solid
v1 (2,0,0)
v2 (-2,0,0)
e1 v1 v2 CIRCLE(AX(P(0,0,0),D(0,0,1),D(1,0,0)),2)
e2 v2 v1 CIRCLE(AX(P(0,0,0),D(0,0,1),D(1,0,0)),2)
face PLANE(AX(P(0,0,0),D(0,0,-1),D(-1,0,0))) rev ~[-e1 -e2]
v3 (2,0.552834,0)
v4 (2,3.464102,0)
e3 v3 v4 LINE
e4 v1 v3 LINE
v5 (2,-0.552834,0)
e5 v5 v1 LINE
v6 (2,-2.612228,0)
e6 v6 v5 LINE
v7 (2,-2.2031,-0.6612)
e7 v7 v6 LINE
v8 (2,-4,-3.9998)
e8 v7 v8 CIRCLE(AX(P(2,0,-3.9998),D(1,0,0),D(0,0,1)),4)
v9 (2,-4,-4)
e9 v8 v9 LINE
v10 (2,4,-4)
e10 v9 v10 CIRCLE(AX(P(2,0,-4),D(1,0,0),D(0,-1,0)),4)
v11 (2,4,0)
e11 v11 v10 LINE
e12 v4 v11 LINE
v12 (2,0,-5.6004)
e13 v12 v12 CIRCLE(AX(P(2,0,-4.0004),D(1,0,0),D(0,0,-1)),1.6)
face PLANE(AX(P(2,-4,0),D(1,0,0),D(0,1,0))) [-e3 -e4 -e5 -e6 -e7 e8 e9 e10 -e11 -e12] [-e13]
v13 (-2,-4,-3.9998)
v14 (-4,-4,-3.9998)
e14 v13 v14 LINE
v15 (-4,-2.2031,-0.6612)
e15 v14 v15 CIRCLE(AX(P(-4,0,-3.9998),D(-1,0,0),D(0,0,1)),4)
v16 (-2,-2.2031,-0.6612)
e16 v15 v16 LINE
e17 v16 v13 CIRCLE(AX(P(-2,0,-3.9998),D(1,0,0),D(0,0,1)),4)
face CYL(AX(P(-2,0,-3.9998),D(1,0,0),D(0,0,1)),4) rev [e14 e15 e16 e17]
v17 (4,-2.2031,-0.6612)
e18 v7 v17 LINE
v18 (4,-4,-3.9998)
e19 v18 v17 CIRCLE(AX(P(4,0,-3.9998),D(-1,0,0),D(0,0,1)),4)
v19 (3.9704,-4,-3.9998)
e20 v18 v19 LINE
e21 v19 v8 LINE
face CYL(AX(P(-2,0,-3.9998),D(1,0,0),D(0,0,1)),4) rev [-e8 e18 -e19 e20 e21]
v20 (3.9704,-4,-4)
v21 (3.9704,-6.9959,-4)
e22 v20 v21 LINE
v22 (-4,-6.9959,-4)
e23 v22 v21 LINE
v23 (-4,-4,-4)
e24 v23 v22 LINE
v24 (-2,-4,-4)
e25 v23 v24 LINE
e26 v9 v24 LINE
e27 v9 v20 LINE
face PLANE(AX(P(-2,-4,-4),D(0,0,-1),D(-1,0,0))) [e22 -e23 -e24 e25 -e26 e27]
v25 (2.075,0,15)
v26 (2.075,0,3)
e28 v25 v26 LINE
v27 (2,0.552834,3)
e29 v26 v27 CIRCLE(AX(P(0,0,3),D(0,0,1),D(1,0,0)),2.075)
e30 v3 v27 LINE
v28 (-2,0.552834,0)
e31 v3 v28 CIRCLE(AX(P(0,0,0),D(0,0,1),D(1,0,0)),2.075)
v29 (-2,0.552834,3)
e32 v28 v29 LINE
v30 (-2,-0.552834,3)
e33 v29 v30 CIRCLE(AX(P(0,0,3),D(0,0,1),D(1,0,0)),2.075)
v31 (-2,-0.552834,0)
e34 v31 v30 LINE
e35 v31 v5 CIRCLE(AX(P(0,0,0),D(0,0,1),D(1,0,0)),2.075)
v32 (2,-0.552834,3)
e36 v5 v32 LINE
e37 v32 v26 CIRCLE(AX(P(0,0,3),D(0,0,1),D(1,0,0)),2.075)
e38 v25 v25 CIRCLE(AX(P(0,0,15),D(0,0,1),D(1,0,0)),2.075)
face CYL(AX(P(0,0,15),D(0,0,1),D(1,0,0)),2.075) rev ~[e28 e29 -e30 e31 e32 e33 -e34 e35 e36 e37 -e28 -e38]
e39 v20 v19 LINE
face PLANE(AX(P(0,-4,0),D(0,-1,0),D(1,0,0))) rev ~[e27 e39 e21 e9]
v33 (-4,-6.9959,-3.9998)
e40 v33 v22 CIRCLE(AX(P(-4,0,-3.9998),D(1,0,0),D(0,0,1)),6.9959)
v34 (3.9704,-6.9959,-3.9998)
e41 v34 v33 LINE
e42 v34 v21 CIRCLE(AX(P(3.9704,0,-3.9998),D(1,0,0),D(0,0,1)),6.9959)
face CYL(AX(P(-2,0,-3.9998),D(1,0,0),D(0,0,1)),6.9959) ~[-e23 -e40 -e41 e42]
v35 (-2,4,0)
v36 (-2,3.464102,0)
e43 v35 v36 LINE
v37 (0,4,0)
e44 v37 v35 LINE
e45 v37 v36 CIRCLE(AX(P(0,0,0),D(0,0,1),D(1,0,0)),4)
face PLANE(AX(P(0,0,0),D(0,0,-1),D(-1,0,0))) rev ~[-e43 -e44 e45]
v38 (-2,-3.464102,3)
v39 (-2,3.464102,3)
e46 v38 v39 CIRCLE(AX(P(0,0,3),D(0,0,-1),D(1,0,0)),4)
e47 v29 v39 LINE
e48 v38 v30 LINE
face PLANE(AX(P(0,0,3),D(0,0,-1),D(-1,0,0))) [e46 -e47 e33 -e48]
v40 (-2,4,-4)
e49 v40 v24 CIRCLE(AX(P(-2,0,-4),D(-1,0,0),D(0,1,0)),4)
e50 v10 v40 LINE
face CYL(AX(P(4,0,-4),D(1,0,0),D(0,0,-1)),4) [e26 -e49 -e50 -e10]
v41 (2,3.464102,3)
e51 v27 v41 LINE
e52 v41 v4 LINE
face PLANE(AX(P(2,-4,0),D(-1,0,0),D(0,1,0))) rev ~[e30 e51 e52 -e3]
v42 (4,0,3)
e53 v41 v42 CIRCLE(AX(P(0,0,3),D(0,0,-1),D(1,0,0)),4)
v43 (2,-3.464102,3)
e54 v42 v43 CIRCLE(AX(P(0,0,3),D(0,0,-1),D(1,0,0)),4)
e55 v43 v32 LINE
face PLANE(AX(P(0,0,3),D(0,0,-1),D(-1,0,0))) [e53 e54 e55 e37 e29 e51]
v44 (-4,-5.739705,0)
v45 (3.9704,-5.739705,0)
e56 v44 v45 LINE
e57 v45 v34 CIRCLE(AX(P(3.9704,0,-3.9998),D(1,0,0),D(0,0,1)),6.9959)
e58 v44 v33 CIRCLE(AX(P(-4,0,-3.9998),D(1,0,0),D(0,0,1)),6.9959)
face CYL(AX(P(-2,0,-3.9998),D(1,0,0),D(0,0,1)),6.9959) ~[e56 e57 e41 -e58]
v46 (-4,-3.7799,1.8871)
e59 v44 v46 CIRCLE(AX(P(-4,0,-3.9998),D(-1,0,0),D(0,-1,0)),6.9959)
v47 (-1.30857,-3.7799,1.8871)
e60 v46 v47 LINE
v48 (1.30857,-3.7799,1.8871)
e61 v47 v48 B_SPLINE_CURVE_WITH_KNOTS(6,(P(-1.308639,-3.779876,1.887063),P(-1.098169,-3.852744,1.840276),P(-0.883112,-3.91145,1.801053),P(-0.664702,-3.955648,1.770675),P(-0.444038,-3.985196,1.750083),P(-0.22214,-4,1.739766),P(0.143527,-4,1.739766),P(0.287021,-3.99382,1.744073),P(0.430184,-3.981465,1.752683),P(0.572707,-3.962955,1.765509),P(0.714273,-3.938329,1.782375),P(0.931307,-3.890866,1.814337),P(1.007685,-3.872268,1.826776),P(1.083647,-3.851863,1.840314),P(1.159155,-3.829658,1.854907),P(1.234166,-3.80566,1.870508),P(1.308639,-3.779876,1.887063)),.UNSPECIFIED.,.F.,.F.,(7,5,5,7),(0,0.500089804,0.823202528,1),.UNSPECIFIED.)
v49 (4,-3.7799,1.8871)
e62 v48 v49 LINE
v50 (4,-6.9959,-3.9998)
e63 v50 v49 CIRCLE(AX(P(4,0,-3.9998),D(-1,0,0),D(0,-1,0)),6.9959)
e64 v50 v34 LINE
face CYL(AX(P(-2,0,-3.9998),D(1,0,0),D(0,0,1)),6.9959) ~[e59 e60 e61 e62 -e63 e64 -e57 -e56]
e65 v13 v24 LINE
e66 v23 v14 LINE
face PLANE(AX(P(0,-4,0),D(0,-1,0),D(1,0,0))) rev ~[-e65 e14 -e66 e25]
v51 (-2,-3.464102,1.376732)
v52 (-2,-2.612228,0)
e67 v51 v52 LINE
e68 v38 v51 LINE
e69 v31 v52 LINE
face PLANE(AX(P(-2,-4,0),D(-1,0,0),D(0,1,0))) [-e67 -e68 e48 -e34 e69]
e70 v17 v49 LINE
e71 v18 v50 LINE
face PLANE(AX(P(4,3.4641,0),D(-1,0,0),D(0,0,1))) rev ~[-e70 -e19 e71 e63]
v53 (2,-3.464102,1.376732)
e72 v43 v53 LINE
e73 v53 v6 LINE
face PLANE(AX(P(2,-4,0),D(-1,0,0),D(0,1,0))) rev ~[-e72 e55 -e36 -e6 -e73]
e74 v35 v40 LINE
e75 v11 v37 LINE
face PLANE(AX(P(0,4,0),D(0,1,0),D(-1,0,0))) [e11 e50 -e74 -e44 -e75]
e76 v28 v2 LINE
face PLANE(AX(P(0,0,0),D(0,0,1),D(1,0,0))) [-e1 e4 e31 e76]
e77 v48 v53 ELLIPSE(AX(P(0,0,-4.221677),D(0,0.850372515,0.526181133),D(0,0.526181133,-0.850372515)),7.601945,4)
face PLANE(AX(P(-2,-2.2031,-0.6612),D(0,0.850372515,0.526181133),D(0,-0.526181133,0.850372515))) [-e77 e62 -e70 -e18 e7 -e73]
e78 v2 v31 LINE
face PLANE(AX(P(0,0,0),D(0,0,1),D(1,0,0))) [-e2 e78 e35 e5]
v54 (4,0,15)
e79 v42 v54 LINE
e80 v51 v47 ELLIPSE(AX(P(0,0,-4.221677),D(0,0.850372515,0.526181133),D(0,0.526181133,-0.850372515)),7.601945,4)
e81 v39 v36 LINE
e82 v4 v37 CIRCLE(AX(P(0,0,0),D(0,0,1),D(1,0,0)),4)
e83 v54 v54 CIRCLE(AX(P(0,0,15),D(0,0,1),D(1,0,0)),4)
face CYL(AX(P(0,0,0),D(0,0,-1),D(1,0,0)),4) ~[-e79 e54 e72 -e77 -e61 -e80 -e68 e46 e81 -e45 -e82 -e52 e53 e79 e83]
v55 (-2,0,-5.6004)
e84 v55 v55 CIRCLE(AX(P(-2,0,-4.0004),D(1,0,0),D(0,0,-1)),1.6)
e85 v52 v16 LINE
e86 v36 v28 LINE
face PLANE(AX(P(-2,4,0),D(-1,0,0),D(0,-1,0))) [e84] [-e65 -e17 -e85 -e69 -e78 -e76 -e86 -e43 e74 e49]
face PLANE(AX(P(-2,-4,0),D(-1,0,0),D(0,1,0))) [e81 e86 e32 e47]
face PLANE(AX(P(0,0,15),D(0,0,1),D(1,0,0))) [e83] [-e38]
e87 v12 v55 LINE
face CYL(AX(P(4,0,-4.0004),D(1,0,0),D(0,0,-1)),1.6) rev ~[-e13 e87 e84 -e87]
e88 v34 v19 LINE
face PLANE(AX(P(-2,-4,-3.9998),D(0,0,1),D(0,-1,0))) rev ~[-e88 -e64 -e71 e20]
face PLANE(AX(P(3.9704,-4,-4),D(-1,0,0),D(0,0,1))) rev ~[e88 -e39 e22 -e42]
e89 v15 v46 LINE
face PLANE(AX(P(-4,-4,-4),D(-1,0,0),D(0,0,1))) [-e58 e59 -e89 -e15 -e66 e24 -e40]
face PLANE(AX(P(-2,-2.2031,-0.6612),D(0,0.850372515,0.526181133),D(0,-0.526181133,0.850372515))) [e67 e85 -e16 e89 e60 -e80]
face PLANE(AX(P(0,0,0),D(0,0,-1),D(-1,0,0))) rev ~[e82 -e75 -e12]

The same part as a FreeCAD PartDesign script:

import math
import FreeCAD as App
import Part
import Sketcher
from FreeCAD import Vector
Q = App.Units.Quantity


def add_polygon(sketch, points):
    """Adds a closed chain of lines whose ends are joined by coincident constraints."""
    first, n = sketch.GeometryCount, len(points)
    for a, b in zip(points, points[1:] + points[:1]):
        sketch.addGeometry(Part.LineSegment(App.Vector(*a, 0), App.Vector(*b, 0)), False)
    for i in range(n):
        sketch.addConstraint(Sketcher.Constraint("Coincident", first + i, 2, first + (i + 1) % n, 1))

doc = App.newDocument("Part")
body = doc.addObject("PartDesign::Body", "Body")

# Sketch on XY plane
sketch1 = doc.addObject("Sketcher::SketchObject", "Sketch")
body.addObject(sketch1)
sketch1.AttachmentSupport = (doc.XY_Plane, [""])
sketch1.MapMode = "FlatFace"
sketch1.addGeometry([
    Part.Circle(Vector(0, 0, 0), Vector(0, 0, 1), 4),
    Part.Circle(Vector(0, 0, 0), Vector(0, 0, 1), 2),
], False)
sketch1.addConstraint([
    Sketcher.Constraint("Coincident", 0, 3, -1, 1),
    Sketcher.Constraint("Coincident", 1, 3, -1, 1),
    Sketcher.Constraint("Diameter", 0, Q("8 mm")),
    Sketcher.Constraint("Diameter", 1, Q("4 mm")),
])
pad1 = doc.addObject("PartDesign::Pad", "Pad")
body.addObject(pad1)
pad1.Profile = sketch1
pad1.Length = 15

# Sketch on XY plane
sketch2 = doc.addObject("Sketcher::SketchObject", "Sketch001")
body.addObject(sketch2)
sketch2.AttachmentSupport = (doc.XY_Plane, [""])
sketch2.MapMode = "FlatFace"
add_polygon(sketch2, [(-4, -4), (-4, 4), (4, 4), (4, -4)])  # lines 0-3
sketch2.addConstraint([
    Sketcher.Constraint("Vertical", 0),
    Sketcher.Constraint("Horizontal", 1),
    Sketcher.Constraint("Vertical", 2),
    Sketcher.Constraint("Horizontal", 3),
    Sketcher.Constraint("Symmetric", 0, 2, 2, 2, -1, 1),
    Sketcher.Constraint("Equal", 3, 0),
    Sketcher.Constraint("DistanceX", 1, 1, 1, 2, Q("8 mm")),
])
pad2 = doc.addObject("PartDesign::Pad", "Pad001")
body.addObject(pad2)
pad2.Profile = sketch2
pad2.Length = 8
pad2.Reversed = True

# Sketch on YZ plane
sketch3 = doc.addObject("Sketcher::SketchObject", "Sketch002")
body.addObject(sketch3)
sketch3.AttachmentSupport = (doc.YZ_Plane, [""])
sketch3.MapMode = "FlatFace"
sketch3.AttachmentOffset = App.Placement(Vector(0, 0, 4), App.Rotation())
sketch3.addGeometry([
    Part.LineSegment(Vector(-4, -8, 0), Vector(0, -8, 0)),  # 0
    Part.ArcOfCircle(Part.Circle(Vector(0, -4, 0), Vector(0, 0, 1), 4), math.radians(180), math.radians(270)),  # 1
    Part.LineSegment(Vector(-4, -4, 0), Vector(-4, -8, 0)),  # 2
    Part.ArcOfCircle(Part.Circle(Vector(0, -4, 0), Vector(0, 0, 1), 4), math.radians(-90), math.radians(0)),  # 3
    Part.LineSegment(Vector(0, -8, 0), Vector(4, -8, 0)),  # 4
    Part.LineSegment(Vector(4, -8, 0), Vector(4, -4, 0)),  # 5
], False)
sketch3.addConstraint([
    Sketcher.Constraint("Tangent", 0, 2, 1, 2),
    Sketcher.Constraint("Tangent", 1, 1, 2, 1),
    Sketcher.Constraint("Coincident", 2, 2, 0, 1),
    Sketcher.Constraint("Tangent", 3, 1, 4, 1),
    Sketcher.Constraint("Coincident", 4, 2, 5, 1),
    Sketcher.Constraint("Tangent", 5, 2, 3, 2),
    Sketcher.Constraint("Horizontal", 0),
    Sketcher.Constraint("Vertical", 2),
    Sketcher.Constraint("Horizontal", 4),
    Sketcher.Constraint("Vertical", 5),
    Sketcher.Constraint("Coincident", 3, 3, 1, 3),
    Sketcher.Constraint("Equal", 1, 3),
    Sketcher.Constraint("PointOnObject", 1, 3, -2),
    Sketcher.Constraint("Radius", 1, Q("4 mm")),
    Sketcher.Constraint("DistanceY", 1, 3, -1, 1, Q("4 mm")),
])
pocket1 = doc.addObject("PartDesign::Pocket", "Pocket")
body.addObject(pocket1)
pocket1.Profile = sketch3
pocket1.Length = 8

# Sketch on YZ plane
sketch4 = doc.addObject("Sketcher::SketchObject", "Sketch003")
body.addObject(sketch4)
sketch4.AttachmentSupport = (doc.YZ_Plane, [""])
sketch4.MapMode = "FlatFace"
sketch4.AttachmentOffset = App.Placement(Vector(0, 0, 4), App.Rotation())
sketch4.addGeometry(Part.Circle(Vector(0, -4, 0), Vector(0, 0, 1), 1.6), False)
sketch4.addConstraint([
    Sketcher.Constraint("PointOnObject", 0, 3, -2),
    Sketcher.Constraint("Diameter", 0, Q("3.2 mm")),
    Sketcher.Constraint("DistanceY", 0, 3, -1, 1, Q("4.0004 mm")),
])
pocket2 = doc.addObject("PartDesign::Pocket", "Pocket001")
body.addObject(pocket2)
pocket2.Profile = sketch4
pocket2.Length = 8

# Sketch on XY plane
sketch5 = doc.addObject("Sketcher::SketchObject", "Sketch004")
body.addObject(sketch5)
sketch5.AttachmentSupport = (doc.XY_Plane, [""])
sketch5.MapMode = "FlatFace"
add_polygon(sketch5, [(4, 4), (2, 4), (2, -4), (4, -4)])  # lines 0-3
add_polygon(sketch5, [(-2, -4), (-2, 4), (-4, 4), (-4, -4)])  # lines 4-7
sketch5.addConstraint([
    Sketcher.Constraint("Horizontal", 0),
    Sketcher.Constraint("Vertical", 1),
    Sketcher.Constraint("Horizontal", 2),
    Sketcher.Constraint("Vertical", 3),
    Sketcher.Constraint("Vertical", 4),
    Sketcher.Constraint("Horizontal", 5),
    Sketcher.Constraint("Vertical", 6),
    Sketcher.Constraint("Horizontal", 7),
    Sketcher.Constraint("Symmetric", 1, 2, 4, 2, -1, 1),
    Sketcher.Constraint("Symmetric", 3, 2, 6, 2, -1, 1),
    Sketcher.Constraint("Horizontal", 3, 2, 4, 2),
    Sketcher.Constraint("DistanceX", 0, 2, 0, 1, Q("2 mm")),
    Sketcher.Constraint("DistanceY", 1, 2, 1, 1, Q("8 mm")),
    Sketcher.Constraint("DistanceX", -1, 1, 0, 2, Q("2 mm")),
])
pocket3 = doc.addObject("PartDesign::Pocket", "Pocket002")
body.addObject(pocket3)
pocket3.Profile = sketch5
pocket3.Length = 8

# Sketch on XZ plane
sketch6 = doc.addObject("Sketcher::SketchObject", "Sketch005")
body.addObject(sketch6)
sketch6.AttachmentSupport = (doc.XZ_Plane, [""])
sketch6.MapMode = "FlatFace"
sketch6.AttachmentOffset = App.Placement(Vector(0, 0, 4), App.Rotation())
add_polygon(sketch6, [(-4, -4), (4, -4), (4, 0), (-4, 0)])  # lines 0-3
sketch6.addConstraint([
    Sketcher.Constraint("Horizontal", 0),
    Sketcher.Constraint("Vertical", 1),
    Sketcher.Constraint("Horizontal", 2),
    Sketcher.Constraint("Vertical", 3),
    Sketcher.Constraint("PointOnObject", 1, 2, -1),
    Sketcher.Constraint("DistanceY", 1, 1, 1, 2, Q("4 mm")),
    Sketcher.Constraint("DistanceX", 2, 2, -1, 1, Q("4 mm")),
    Sketcher.Constraint("DistanceX", 0, 1, 0, 2, Q("7.9704 mm")),
])
pad3 = doc.addObject("PartDesign::Pad", "Pad002")
body.addObject(pad3)
pad3.Profile = sketch6
pad3.Length = 3

# Sketch on XY plane
sketch7 = doc.addObject("Sketcher::SketchObject", "Sketch006")
body.addObject(sketch7)
sketch7.AttachmentSupport = (doc.XY_Plane, [""])
sketch7.MapMode = "FlatFace"
add_polygon(sketch7, [(-5, 4), (-2, 4), (-2, -4), (-5, -4)])  # lines 0-3
add_polygon(sketch7, [(2, -4), (2, 4), (4.8, 4), (4.8, -4)])  # lines 4-7
sketch7.addConstraint([
    Sketcher.Constraint("Horizontal", 0),
    Sketcher.Constraint("Vertical", 1),
    Sketcher.Constraint("Horizontal", 2),
    Sketcher.Constraint("Vertical", 3),
    Sketcher.Constraint("Vertical", 4),
    Sketcher.Constraint("Horizontal", 5),
    Sketcher.Constraint("Vertical", 6),
    Sketcher.Constraint("Horizontal", 7),
    Sketcher.Constraint("Symmetric", 1, 2, 4, 2, -1, 1),
    Sketcher.Constraint("Horizontal", 3, 2, 4, 2),
    Sketcher.Constraint("Horizontal", 2, 2, 6, 2),
    Sketcher.Constraint("DistanceY", 1, 2, 1, 1, Q("8 mm")),
    Sketcher.Constraint("DistanceX", 0, 2, -1, 1, Q("2 mm")),
    Sketcher.Constraint("DistanceX", 0, 1, 0, 2, Q("3.0463 mm")),
    Sketcher.Constraint("DistanceX", 5, 1, 5, 2, Q("2.8372 mm")),
])
pocket4 = doc.addObject("PartDesign::Pocket", "Pocket003")
body.addObject(pocket4)
pocket4.Profile = sketch7
pocket4.Length = 3
pocket4.Reversed = True

# Sketch on YZ plane
sketch8 = doc.addObject("Sketcher::SketchObject", "Sketch007")
body.addObject(sketch8)
sketch8.AttachmentSupport = (doc.YZ_Plane, [""])
sketch8.MapMode = "FlatFace"
sketch8.AttachmentOffset = App.Placement(Vector(0, 0, -2), App.Rotation())
sketch8.addGeometry([
    Part.ArcOfCircle(Part.Circle(Vector(0, -4, 0), Vector(0, 0, 1), 7), math.radians(139), math.radians(191)),
    Part.LineSegment(Vector(-6.9, -5.4, 0), Vector(-8.6, -5.8, 0)),
    Part.ArcOfCircle(Part.Circle(Vector(0, -4, 0), Vector(0, 0, 1), 8.7), math.radians(139), math.radians(192)),
    Part.LineSegment(Vector(-6.6, 1.8, 0), Vector(-5.3, 0.6, 0)),
], False)
sketch8.addConstraint([
    Sketcher.Constraint("Coincident", 0, 2, 1, 1),
    Sketcher.Constraint("Coincident", 1, 2, 2, 2),
    Sketcher.Constraint("Coincident", 2, 1, 3, 1),
    Sketcher.Constraint("Coincident", 3, 2, 0, 1),
    Sketcher.Constraint("Coincident", 2, 3, 0, 3),
    Sketcher.Constraint("PointOnObject", 0, 3, -2),
    Sketcher.Constraint("Radius", 0, Q("6.996 mm")),
    Sketcher.Constraint("Radius", 2, Q("8.7454 mm")),
    Sketcher.Constraint("DistanceY", 0, 2, -1, 1, Q("5.354 mm")),
    Sketcher.Constraint("DistanceX", 1, 2, -1, 1, Q("8.561 mm")),
    Sketcher.Constraint("DistanceY", -1, 1, 2, 1, Q("1.759 mm")),
    Sketcher.Constraint("DistanceY", -1, 1, 3, 2, Q("0.613 mm")),
    Sketcher.Constraint("DistanceX", 0, 2, 2, 1, Q("0.282 mm")),
])
pocket5 = doc.addObject("PartDesign::Pocket", "Pocket004")
body.addObject(pocket5)
pocket5.Profile = sketch8
pocket5.Length = 20
pocket5.Midplane = True

# Sketch on YZ plane
sketch9 = doc.addObject("Sketcher::SketchObject", "Sketch008")
body.addObject(sketch9)
sketch9.AttachmentSupport = (doc.YZ_Plane, [""])
sketch9.MapMode = "FlatFace"
sketch9.AttachmentOffset = App.Placement(Vector(0, 0, -2), App.Rotation())
sketch9.addGeometry([
    Part.ArcOfCircle(Part.Circle(Vector(0, -4, 0), Vector(0, 0, 1), 4), math.radians(123), math.radians(180)),
    Part.LineSegment(Vector(-4, -4, 0), Vector(-7, -4, 0)),
    Part.ArcOfCircle(Part.Circle(Vector(0, -4, 0), Vector(0, 0, 1), 7), math.radians(123), math.radians(180)),
    Part.LineSegment(Vector(-3.8, 1.9, 0), Vector(-2.2, -0.7, 0)),
], False)
sketch9.addConstraint([
    Sketcher.Constraint("Coincident", 0, 2, 1, 1),
    Sketcher.Constraint("Coincident", 1, 2, 2, 2),
    Sketcher.Constraint("Coincident", 2, 1, 3, 1),
    Sketcher.Constraint("Coincident", 3, 2, 0, 1),
    Sketcher.Constraint("Horizontal", 1),
    Sketcher.Constraint("Coincident", 2, 3, 0, 3),
    Sketcher.Constraint("PointOnObject", 0, 3, -2),
    Sketcher.Constraint("Horizontal", 2, 3, 0, 2),
    Sketcher.Constraint("Radius", 0, Q("4 mm")),
    Sketcher.Constraint("Radius", 2, Q("6.996 mm")),
    Sketcher.Constraint("DistanceY", -1, 1, 2, 1, Q("1.887 mm")),
    Sketcher.Constraint("DistanceX", 3, 2, -1, 1, Q("2.203 mm")),
    Sketcher.Constraint("DistanceX", 1, 2, 2, 1, Q("3.216 mm")),
])
pad4 = doc.addObject("PartDesign::Pad", "Pad003")
body.addObject(pad4)
pad4.Profile = sketch9
pad4.Type = "TwoLengths"
pad4.Length = 2
pad4.Length2 = 6
pad4.Reversed = True

# Sketch on XY plane
sketch10 = doc.addObject("Sketcher::SketchObject", "Sketch009")
body.addObject(sketch10)
sketch10.AttachmentSupport = (doc.XY_Plane, [""])
sketch10.MapMode = "FlatFace"
sketch10.AttachmentOffset = App.Placement(Vector(0, 0, 15), App.Rotation())
sketch10.addGeometry(Part.Circle(Vector(0, 0, 0), Vector(0, 0, 1), 2.1), False)
sketch10.addConstraint([
    Sketcher.Constraint("Coincident", 0, 3, -1, 1),
    Sketcher.Constraint("Diameter", 0, Q("4.15 mm")),
])
pocket6 = doc.addObject("PartDesign::Pocket", "Pocket005")
body.addObject(pocket6)
pocket6.Profile = sketch10
pocket6.Length = 15

doc.recompute()
